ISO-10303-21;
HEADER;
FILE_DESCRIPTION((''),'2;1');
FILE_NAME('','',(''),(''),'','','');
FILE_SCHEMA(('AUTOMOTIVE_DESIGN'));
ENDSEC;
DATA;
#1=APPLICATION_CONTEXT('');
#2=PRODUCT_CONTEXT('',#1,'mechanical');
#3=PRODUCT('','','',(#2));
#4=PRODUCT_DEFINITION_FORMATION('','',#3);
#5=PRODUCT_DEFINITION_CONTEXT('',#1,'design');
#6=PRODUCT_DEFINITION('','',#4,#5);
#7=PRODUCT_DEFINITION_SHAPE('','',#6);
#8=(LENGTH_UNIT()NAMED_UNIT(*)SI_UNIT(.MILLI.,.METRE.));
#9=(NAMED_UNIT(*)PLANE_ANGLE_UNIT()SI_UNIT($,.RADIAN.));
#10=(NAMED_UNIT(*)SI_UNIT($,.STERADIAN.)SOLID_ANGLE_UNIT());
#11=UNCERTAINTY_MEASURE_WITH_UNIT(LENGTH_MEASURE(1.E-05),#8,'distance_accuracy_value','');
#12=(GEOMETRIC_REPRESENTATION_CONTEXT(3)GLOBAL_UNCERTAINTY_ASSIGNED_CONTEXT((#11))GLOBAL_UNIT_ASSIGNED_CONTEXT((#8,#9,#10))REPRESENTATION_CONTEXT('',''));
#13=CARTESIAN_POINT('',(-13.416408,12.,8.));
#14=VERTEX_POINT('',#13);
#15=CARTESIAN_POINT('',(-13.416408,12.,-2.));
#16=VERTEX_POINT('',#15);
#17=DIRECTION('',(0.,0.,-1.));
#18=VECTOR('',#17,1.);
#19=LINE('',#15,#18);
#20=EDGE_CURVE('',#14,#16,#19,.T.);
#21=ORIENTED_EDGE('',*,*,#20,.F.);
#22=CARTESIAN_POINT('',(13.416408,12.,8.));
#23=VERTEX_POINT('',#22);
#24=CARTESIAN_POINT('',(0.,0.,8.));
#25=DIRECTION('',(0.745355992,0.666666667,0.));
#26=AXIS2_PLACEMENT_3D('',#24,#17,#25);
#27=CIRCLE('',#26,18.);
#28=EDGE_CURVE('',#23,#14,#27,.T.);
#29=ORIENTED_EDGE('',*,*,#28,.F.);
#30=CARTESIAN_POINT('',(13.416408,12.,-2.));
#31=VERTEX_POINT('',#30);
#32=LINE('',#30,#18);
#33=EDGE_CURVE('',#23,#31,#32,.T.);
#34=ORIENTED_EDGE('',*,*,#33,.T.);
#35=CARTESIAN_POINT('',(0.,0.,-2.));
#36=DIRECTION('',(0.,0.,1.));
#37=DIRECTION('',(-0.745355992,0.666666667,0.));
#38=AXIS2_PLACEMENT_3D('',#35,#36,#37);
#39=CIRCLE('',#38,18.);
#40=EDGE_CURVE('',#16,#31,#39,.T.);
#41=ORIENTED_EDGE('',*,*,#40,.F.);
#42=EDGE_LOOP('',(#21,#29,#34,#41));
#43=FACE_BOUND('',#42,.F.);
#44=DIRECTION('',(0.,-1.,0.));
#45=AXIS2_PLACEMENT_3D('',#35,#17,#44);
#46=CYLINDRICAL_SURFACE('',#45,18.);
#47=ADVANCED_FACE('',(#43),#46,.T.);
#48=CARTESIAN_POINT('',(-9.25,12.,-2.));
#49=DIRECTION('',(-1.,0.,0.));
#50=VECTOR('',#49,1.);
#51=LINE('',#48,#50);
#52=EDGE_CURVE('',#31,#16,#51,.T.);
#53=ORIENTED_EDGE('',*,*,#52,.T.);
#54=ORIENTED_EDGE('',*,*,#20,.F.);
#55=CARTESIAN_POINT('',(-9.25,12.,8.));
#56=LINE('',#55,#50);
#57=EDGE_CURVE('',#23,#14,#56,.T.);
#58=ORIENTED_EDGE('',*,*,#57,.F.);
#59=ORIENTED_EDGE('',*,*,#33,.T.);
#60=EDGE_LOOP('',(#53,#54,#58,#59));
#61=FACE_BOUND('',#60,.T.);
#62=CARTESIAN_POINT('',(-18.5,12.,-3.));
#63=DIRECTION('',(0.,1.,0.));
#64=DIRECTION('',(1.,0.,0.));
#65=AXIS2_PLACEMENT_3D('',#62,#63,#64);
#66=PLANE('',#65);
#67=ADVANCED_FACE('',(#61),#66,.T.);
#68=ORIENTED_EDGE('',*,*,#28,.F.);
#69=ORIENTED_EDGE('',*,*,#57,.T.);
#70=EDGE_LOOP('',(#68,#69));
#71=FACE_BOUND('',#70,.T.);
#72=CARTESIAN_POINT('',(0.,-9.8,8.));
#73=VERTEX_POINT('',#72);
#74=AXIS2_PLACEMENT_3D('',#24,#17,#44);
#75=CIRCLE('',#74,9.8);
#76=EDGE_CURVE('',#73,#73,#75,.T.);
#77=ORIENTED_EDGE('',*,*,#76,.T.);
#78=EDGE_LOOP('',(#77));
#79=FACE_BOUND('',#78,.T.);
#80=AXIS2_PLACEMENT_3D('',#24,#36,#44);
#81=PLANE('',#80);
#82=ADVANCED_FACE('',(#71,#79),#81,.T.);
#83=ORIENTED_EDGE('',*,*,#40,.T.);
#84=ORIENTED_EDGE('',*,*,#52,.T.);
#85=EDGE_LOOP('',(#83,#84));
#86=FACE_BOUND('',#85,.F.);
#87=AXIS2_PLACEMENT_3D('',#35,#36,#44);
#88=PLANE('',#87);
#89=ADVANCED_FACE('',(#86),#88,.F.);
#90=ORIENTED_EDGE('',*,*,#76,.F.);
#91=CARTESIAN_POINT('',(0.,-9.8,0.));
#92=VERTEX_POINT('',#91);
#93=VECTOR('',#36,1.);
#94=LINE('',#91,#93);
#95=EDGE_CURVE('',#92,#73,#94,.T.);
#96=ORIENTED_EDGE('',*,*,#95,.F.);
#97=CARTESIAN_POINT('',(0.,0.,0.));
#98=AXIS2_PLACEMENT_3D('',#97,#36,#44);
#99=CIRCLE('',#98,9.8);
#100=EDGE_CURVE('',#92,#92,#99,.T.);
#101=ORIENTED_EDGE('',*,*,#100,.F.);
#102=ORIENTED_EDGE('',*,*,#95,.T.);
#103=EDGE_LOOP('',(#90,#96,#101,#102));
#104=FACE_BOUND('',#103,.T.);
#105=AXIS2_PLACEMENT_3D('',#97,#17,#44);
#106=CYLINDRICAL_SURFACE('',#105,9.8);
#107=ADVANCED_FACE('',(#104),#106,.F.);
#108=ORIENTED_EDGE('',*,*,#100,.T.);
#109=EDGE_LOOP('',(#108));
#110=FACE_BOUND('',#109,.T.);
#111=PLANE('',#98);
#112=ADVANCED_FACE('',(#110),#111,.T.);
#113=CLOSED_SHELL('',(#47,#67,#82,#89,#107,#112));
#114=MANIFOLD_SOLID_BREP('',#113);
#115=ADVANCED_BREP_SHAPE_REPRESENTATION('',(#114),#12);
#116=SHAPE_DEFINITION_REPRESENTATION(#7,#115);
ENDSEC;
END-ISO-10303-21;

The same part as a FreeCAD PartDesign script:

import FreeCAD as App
import Part
import Sketcher
from FreeCAD import Vector

doc = App.newDocument("Part")
params = doc.addObject("Spreadsheet::Sheet", "Params")
for row, (alias, value) in enumerate([
    ("sketch1_width", "10 mm"),
    ("sketch1_height", "35 mm"),
    ("pad1_length", "15 mm"),
    ("sketch2_diameter", "19.6 mm"),
    ("pad2_length", "110 mm"),
    ("sketch3_diameter", "36 mm"),
    ("pad3_length", "10 mm"),
], start=1):
    params.set(f"A{row}", alias)
    params.set(f"B{row}", "=" + value)
    params.setAlias(f"B{row}", alias)

body = doc.addObject("PartDesign::Body", "Body")

# Sketch on XY plane
sketch1 = body.newObject("Sketcher::SketchObject", "Sketch")
sketch1.AttachmentSupport = (doc.getObject("XY_Plane"), [""])
sketch1.MapMode = "FlatFace"
sketch1.AttachmentOffset = App.Placement(Vector(0, 0, -3), App.Rotation())
sketch1.addGeometry([
    Part.LineSegment(Vector(-22, 16.5, 0), Vector(-22, -18.5, 0)),
    Part.LineSegment(Vector(-22, -18.5, 0), Vector(-12, -18.5, 0)),
    Part.LineSegment(Vector(-12, -18.5, 0), Vector(-12, 16.5, 0)),
    Part.LineSegment(Vector(-12, 16.5, 0), Vector(-22, 16.5, 0)),
], False)
sketch1.addConstraint([
    Sketcher.Constraint("Coincident", 0, 2, 1, 1),
    Sketcher.Constraint("Coincident", 1, 2, 2, 1),
    Sketcher.Constraint("Coincident", 2, 2, 3, 1),
    Sketcher.Constraint("Coincident", 3, 2, 0, 1),
    Sketcher.Constraint("Vertical", 0),
    Sketcher.Constraint("Horizontal", 1),
    Sketcher.Constraint("Vertical", 2),
    Sketcher.Constraint("Horizontal", 3),
    Sketcher.Constraint("DistanceX", 1, 1, 1, 2, 10.0),
    Sketcher.Constraint("DistanceY", 0, 2, 0, 1, 35.0),
    Sketcher.Constraint("DistanceX", 0, 2, -1, 1, 22.0),
    Sketcher.Constraint("DistanceY", 0, 2, -1, 1, 18.5),
])
sketch1.setExpression("Constraints[8]", "Params.sketch1_width")
sketch1.setExpression("Constraints[9]", "Params.sketch1_height")
pad1 = body.newObject("PartDesign::Pad", "Pad")
pad1.Profile = sketch1
pad1.setExpression("Length", "Params.pad1_length")
body2 = doc.addObject("PartDesign::Body", "Body001")

# Sketch on XY plane
sketch2 = body2.newObject("Sketcher::SketchObject", "Sketch001")
sketch2.AttachmentSupport = (doc.getObject("XY_Plane001"), [""])
sketch2.MapMode = "FlatFace"
sketch2.addGeometry(Part.Circle(Vector(0, 0, 0), Vector(0, 0, 1), 9.8), False)
sketch2.addConstraint([
    Sketcher.Constraint("Coincident", 0, 3, -1, 1),
    Sketcher.Constraint("Diameter", 0, 19.6),
])
sketch2.setExpression("Constraints[1]", "Params.sketch2_diameter")
pad2 = body2.newObject("PartDesign::Pad", "Pad001")
pad2.Profile = sketch2
pad2.setExpression("Length", "Params.pad2_length")
body3 = doc.addObject("PartDesign::Body", "Body002")

# Sketch on XY plane
sketch3 = body3.newObject("Sketcher::SketchObject", "Sketch002")
sketch3.AttachmentSupport = (doc.getObject("XY_Plane002"), [""])
sketch3.MapMode = "FlatFace"
sketch3.AttachmentOffset = App.Placement(Vector(0, 0, -2), App.Rotation())
sketch3.addGeometry(Part.Circle(Vector(0, 0, 0), Vector(0, 0, 1), 18), False)
sketch3.addConstraint([
    Sketcher.Constraint("Coincident", 0, 3, -1, 1),
    Sketcher.Constraint("Diameter", 0, 36.0),
])
sketch3.setExpression("Constraints[1]", "Params.sketch3_diameter")
pad3 = body3.newObject("PartDesign::Pad", "Pad002")
pad3.Profile = sketch3
pad3.setExpression("Length", "Params.pad3_length")
doc.recompute()

boolean = body3.newObject("PartDesign::Boolean", "Boolean")
boolean.Type = "Cut"
boolean.addObjects([body2])
doc.recompute()

boolean2 = body3.newObject("PartDesign::Boolean", "Boolean001")
boolean2.Type = "Cut"
boolean2.addObjects([body])
body4 = doc.addObject("PartDesign::Body", "Body003")
doc.recompute()

body3.Placement = App.Placement(Vector(0, 0, 0), App.Rotation(Vector(0, 0, -1), 90))
boolean3 = body4.newObject("PartDesign::Boolean", "Boolean002")
boolean3.Type = "Fuse"
boolean3.addObjects([body3])

doc.recompute()
